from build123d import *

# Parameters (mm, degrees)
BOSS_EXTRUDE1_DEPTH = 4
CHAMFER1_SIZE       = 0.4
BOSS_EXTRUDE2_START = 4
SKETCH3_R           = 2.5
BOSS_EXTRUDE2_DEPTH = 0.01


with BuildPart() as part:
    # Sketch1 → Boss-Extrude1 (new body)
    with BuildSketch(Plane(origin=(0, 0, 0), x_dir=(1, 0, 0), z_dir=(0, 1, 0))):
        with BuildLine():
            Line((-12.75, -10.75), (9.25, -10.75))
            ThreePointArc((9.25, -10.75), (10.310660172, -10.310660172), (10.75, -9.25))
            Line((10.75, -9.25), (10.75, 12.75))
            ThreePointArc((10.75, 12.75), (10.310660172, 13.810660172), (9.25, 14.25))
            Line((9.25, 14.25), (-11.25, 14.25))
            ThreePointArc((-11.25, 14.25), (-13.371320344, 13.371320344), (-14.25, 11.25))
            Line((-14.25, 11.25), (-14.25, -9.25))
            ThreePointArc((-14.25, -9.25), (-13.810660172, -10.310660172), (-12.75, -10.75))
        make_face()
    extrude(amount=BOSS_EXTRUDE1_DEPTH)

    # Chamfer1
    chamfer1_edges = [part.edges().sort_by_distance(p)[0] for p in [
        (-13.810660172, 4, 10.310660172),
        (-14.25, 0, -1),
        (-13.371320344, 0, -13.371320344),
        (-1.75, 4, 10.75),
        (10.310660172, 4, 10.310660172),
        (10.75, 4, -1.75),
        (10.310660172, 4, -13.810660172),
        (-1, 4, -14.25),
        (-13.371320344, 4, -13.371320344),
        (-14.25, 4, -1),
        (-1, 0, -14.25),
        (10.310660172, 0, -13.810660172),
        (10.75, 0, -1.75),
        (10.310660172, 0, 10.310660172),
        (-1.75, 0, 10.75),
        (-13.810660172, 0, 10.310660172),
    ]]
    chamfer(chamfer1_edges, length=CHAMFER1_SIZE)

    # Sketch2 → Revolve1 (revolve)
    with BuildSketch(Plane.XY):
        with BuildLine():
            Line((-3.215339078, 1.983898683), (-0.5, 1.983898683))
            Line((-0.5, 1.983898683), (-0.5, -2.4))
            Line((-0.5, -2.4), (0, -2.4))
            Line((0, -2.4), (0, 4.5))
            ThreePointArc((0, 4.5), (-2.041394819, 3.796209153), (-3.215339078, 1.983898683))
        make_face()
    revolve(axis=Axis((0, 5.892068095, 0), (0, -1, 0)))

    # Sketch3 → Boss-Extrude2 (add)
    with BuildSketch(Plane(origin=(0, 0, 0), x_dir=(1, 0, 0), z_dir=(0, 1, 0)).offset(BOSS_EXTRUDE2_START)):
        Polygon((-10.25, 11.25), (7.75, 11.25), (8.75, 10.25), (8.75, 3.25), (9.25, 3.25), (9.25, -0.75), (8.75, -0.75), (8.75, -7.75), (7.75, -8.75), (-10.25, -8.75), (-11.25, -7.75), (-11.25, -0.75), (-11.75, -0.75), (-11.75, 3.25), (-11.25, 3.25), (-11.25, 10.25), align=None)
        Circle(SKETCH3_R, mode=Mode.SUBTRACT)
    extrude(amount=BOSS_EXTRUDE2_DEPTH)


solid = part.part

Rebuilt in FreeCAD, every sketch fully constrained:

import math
import FreeCAD as App
import Part
import Sketcher
from FreeCAD import Vector


def edges_at(feature, points):
    """Names of the edges that pass closest to the given points."""
    edges = feature.Shape.Edges
    near = lambda p: min(range(len(edges)), key=lambda i: edges[i].distToShape(Part.Vertex(*p))[0])
    return sorted({f"Edge{near(p) + 1}" for p in points})

doc = App.newDocument("Part")
body = doc.addObject("PartDesign::Body", "Body")

# Sketch on XZ plane
sketch1 = doc.addObject("Sketcher::SketchObject", "Sketch")
body.addObject(sketch1)
sketch1.AttachmentSupport = (doc.XZ_Plane, [""])
sketch1.MapMode = "FlatFace"
sketch1.addGeometry([
    Part.LineSegment(Vector(-12.8, 10.8, 0), Vector(9.2, 10.8, 0)),  # 0
    Part.ArcOfCircle(Part.Circle(Vector(9.3, 9.3, 0), Vector(0, 0, 1), 1.5), math.radians(0), math.radians(90)),  # 1
    Part.LineSegment(Vector(10.8, 9.2, 0), Vector(10.8, -12.8, 0)),  # 2
    Part.ArcOfCircle(Part.Circle(Vector(9.3, -12.8, 0), Vector(0, 0, 1), 1.5), math.radians(-90), math.radians(0)),  # 3
    Part.LineSegment(Vector(9.2, -14.2, 0), Vector(-11.2, -14.2, 0)),  # 4
    Part.ArcOfCircle(Part.Circle(Vector(-11.3, -11.3, 0), Vector(0, 0, 1), 3), math.radians(180), math.radians(270)),  # 5
    Part.LineSegment(Vector(-14.2, -11.2, 0), Vector(-14.2, 9.2, 0)),  # 6
    Part.ArcOfCircle(Part.Circle(Vector(-12.8, 9.3, 0), Vector(0, 0, 1), 1.5), math.radians(90), math.radians(180)),  # 7
], False)
sketch1.addConstraint([
    Sketcher.Constraint("Tangent", 0, 2, 1, 2),
    Sketcher.Constraint("Tangent", 1, 1, 2, 1),
    Sketcher.Constraint("Tangent", 2, 2, 3, 2),
    Sketcher.Constraint("Tangent", 3, 1, 4, 1),
    Sketcher.Constraint("Tangent", 4, 2, 5, 2),
    Sketcher.Constraint("Tangent", 5, 1, 6, 1),
    Sketcher.Constraint("Tangent", 6, 2, 7, 2),
    Sketcher.Constraint("Tangent", 7, 1, 0, 1),
    Sketcher.Constraint("Horizontal", 0),
    Sketcher.Constraint("Vertical", 2),
    Sketcher.Constraint("Horizontal", 4),
    Sketcher.Constraint("Vertical", 6),
    Sketcher.Constraint("Equal", 1, 3),
    Sketcher.Constraint("Equal", 3, 7),
    Sketcher.Constraint("Equal", 0, 2),
    Sketcher.Constraint("Radius", 5, 3.0),
    Sketcher.Constraint("Radius", 1, 1.5),
    Sketcher.Constraint("DistanceX", 0, 1, 0, 2, 22.0),
    Sketcher.Constraint("DistanceX", -1, 1, 1, 3, 9.25),
    Sketcher.Constraint("DistanceY", -1, 1, 1, 3, 9.25),
])
pad1 = doc.addObject("PartDesign::Pad", "Pad")
body.addObject(pad1)
pad1.Profile = sketch1
pad1.Length = 4
pad1.Reversed = True
doc.recompute()

chamfer = doc.addObject("PartDesign::Chamfer", "Chamfer")
body.addObject(chamfer)
chamfer.Base = (pad1, edges_at(pad1, [
    (-13.811, 4, 10.311),
    (-14.25, 0, -1),
    (-13.371, 0, -13.371),
    (-1.75, 4, 10.75),
    (10.311, 4, 10.311),
    (10.75, 4, -1.75),
    (10.311, 4, -13.811),
    (-1, 4, -14.25),
    (-13.371, 4, -13.371),
    (-14.25, 4, -1),
    (-1, 0, -14.25),
    (10.311, 0, -13.811),
    (10.75, 0, -1.75),
    (10.311, 0, 10.311),
    (-1.75, 0, 10.75),
    (-13.811, 0, 10.311),
]))
chamfer.Size = 0.4

# Sketch on XY plane
sketch2 = doc.addObject("Sketcher::SketchObject", "Sketch001")
body.addObject(sketch2)
sketch2.AttachmentSupport = (doc.XY_Plane, [""])
sketch2.MapMode = "FlatFace"
sketch2.addGeometry([
    Part.LineSegment(Vector(-3.2, 2, 0), Vector(-0.5, 2, 0)),  # 0
    Part.LineSegment(Vector(-0.5, 2, 0), Vector(-0.5, -2.4, 0)),  # 1
    Part.LineSegment(Vector(-0.5, -2.4, 0), Vector(0, -2.4, 0)),  # 2
    Part.LineSegment(Vector(0, -2.4, 0), Vector(0, 4.5, 0)),  # 3
    Part.ArcOfCircle(Part.Circle(Vector(0, 1.2, 0), Vector(0, 0, 1), 3.3), math.radians(90), math.radians(166)),  # 4
], False)
sketch2.addConstraint([
    Sketcher.Constraint("Coincident", 0, 2, 1, 1),
    Sketcher.Constraint("Coincident", 1, 2, 2, 1),
    Sketcher.Constraint("Coincident", 2, 2, 3, 1),
    Sketcher.Constraint("Coincident", 3, 2, 4, 1),
    Sketcher.Constraint("Coincident", 4, 2, 0, 1),
    Sketcher.Constraint("Horizontal", 0),
    Sketcher.Constraint("Vertical", 1),
    Sketcher.Constraint("Horizontal", 2),
    Sketcher.Constraint("Vertical", 3),
    Sketcher.Constraint("PointOnObject", 4, 3, -2),
    Sketcher.Constraint("PointOnObject", 2, 2, -2),
    Sketcher.Constraint("DistanceX", 2, 1, 2, 2, 0.5),
    Sketcher.Constraint("DistanceY", 3, 1, 3, 2, 6.9),
    Sketcher.Constraint("DistanceY", 1, 2, -1, 1, 2.4),
    Sketcher.Constraint("Radius", 4, 3.3125),
    Sketcher.Constraint("DistanceY", 1, 2, 1, 1, 4.383899),
])
revolution = doc.addObject("PartDesign::Revolution", "Revolution")
body.addObject(revolution)
revolution.Profile = sketch2
revolution.ReferenceAxis = (sketch2, ["V_Axis"])
revolution.Angle = 360

# Sketch on XZ plane
sketch3 = doc.addObject("Sketcher::SketchObject", "Sketch002")
body.addObject(sketch3)
sketch3.AttachmentSupport = (doc.XZ_Plane, [""])
sketch3.MapMode = "FlatFace"
sketch3.AttachmentOffset = App.Placement(Vector(0, 0, -4), App.Rotation())
sketch3.addGeometry([
    Part.LineSegment(Vector(7.8, -11.2, 0), Vector(-10.2, -11.2, 0)),  # 0
    Part.LineSegment(Vector(-10.2, -11.2, 0), Vector(-11.2, -10.2, 0)),  # 1
    Part.LineSegment(Vector(-11.2, -10.2, 0), Vector(-11.2, -3.2, 0)),  # 2
    Part.LineSegment(Vector(-11.2, -3.2, 0), Vector(-11.8, -3.2, 0)),  # 3
    Part.LineSegment(Vector(-11.8, -3.2, 0), Vector(-11.8, 0.8, 0)),  # 4
    Part.LineSegment(Vector(-11.8, 0.8, 0), Vector(-11.2, 0.8, 0)),  # 5
    Part.LineSegment(Vector(-11.2, 0.8, 0), Vector(-11.2, 7.8, 0)),  # 6
    Part.LineSegment(Vector(-11.2, 7.8, 0), Vector(-10.2, 8.8, 0)),  # 7
    Part.LineSegment(Vector(-10.2, 8.8, 0), Vector(7.8, 8.8, 0)),  # 8
    Part.LineSegment(Vector(7.8, 8.8, 0), Vector(8.8, 7.8, 0)),  # 9
    Part.LineSegment(Vector(8.8, 7.8, 0), Vector(8.8, 0.8, 0)),  # 10
    Part.LineSegment(Vector(8.8, 0.8, 0), Vector(9.2, 0.8, 0)),  # 11
    Part.LineSegment(Vector(9.2, 0.8, 0), Vector(9.2, -3.2, 0)),  # 12
    Part.LineSegment(Vector(9.2, -3.2, 0), Vector(8.8, -3.2, 0)),  # 13
    Part.LineSegment(Vector(8.8, -3.2, 0), Vector(8.8, -10.2, 0)),  # 14
    Part.LineSegment(Vector(8.8, -10.2, 0), Vector(7.8, -11.2, 0)),  # 15
    Part.Circle(Vector(0, 0, 0), Vector(0, 0, 1), 2.5),  # 16
], False)
sketch3.addConstraint([
    Sketcher.Constraint("Coincident", 0, 2, 1, 1),
    Sketcher.Constraint("Coincident", 1, 2, 2, 1),
    Sketcher.Constraint("Coincident", 2, 2, 3, 1),
    Sketcher.Constraint("Coincident", 3, 2, 4, 1),
    Sketcher.Constraint("Coincident", 4, 2, 5, 1),
    Sketcher.Constraint("Coincident", 5, 2, 6, 1),
    Sketcher.Constraint("Coincident", 6, 2, 7, 1),
    Sketcher.Constraint("Coincident", 7, 2, 8, 1),
    Sketcher.Constraint("Coincident", 8, 2, 9, 1),
    Sketcher.Constraint("Coincident", 9, 2, 10, 1),
    Sketcher.Constraint("Coincident", 10, 2, 11, 1),
    Sketcher.Constraint("Coincident", 11, 2, 12, 1),
    Sketcher.Constraint("Coincident", 12, 2, 13, 1),
    Sketcher.Constraint("Coincident", 13, 2, 14, 1),
    Sketcher.Constraint("Coincident", 14, 2, 15, 1),
    Sketcher.Constraint("Coincident", 15, 2, 0, 1),
    Sketcher.Constraint("Horizontal", 0),
    Sketcher.Constraint("Vertical", 2),
    Sketcher.Constraint("Horizontal", 3),
    Sketcher.Constraint("Vertical", 4),
    Sketcher.Constraint("Horizontal", 5),
    Sketcher.Constraint("Vertical", 6),
    Sketcher.Constraint("Horizontal", 8),
    Sketcher.Constraint("Vertical", 10),
    Sketcher.Constraint("Horizontal", 11),
    Sketcher.Constraint("Vertical", 12),
    Sketcher.Constraint("Horizontal", 13),
    Sketcher.Constraint("Vertical", 14),
    Sketcher.Constraint("Coincident", 16, 3, -1, 1),
    Sketcher.Constraint("Perpendicular", 1, 7),
    Sketcher.Constraint("Perpendicular", 7, 9),
    Sketcher.Constraint("Perpendicular", 9, 15),
    Sketcher.Constraint("Horizontal", 6, 2, 9, 2),
    Sketcher.Constraint("Horizontal", 5, 2, 10, 2),
    Sketcher.Constraint("Horizontal", 3, 2, 12, 2),
    Sketcher.Constraint("Horizontal", 1, 2, 14, 2),
    Sketcher.Constraint("Vertical", 2, 2, 5, 2),
    Sketcher.Constraint("Vertical", 0, 2, 7, 2),
    Sketcher.Constraint("Vertical", 10, 2, 13, 2),
    Sketcher.Constraint("Vertical", 8, 2, 15, 2),
    Sketcher.Constraint("Equal", 5, 11),
    Sketcher.Constraint("Equal", 2, 6),
    Sketcher.Constraint("Diameter", 16, 5.0),
    Sketcher.Constraint("DistanceX", 0, 2, 0, 1, 18.0),
    Sketcher.Constraint("DistanceY", 2, 1, 2, 2, 7.0),
    Sketcher.Constraint("DistanceY", 4, 1, 4, 2, 4.0),
    Sketcher.Constraint("DistanceX", 3, 2, 3, 1, 0.5),
    Sketcher.Constraint("DistanceX", 1, 2, 0, 2, 1.0),
    Sketcher.Constraint("DistanceX", 0, 2, -1, 1, 10.25),
    Sketcher.Constraint("DistanceY", 0, 2, -1, 1, 11.25),
])
pad2 = doc.addObject("PartDesign::Pad", "Pad001")
body.addObject(pad2)
pad2.Profile = sketch3
pad2.Length = 0.01
pad2.Reversed = True

doc.recompute()
